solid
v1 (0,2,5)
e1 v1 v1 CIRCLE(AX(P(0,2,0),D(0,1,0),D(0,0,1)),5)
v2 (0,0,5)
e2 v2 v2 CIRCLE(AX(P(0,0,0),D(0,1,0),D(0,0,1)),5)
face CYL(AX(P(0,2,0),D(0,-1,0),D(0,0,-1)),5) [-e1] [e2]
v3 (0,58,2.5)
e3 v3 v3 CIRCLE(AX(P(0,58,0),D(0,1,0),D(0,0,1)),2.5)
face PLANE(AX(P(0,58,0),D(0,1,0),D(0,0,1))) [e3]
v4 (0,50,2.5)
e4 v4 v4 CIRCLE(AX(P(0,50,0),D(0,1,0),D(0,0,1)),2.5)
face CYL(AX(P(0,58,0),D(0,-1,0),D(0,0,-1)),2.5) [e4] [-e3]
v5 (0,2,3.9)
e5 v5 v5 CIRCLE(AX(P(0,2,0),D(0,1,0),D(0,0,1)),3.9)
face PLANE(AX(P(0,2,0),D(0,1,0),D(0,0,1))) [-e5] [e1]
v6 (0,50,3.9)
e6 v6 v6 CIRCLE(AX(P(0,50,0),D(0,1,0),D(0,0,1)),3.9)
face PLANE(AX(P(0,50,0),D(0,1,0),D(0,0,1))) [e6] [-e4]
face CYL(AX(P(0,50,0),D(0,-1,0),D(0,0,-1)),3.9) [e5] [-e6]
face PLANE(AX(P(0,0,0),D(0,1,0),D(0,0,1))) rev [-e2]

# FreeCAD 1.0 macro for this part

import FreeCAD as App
import Part
import Sketcher

V = App.Vector

doc = App.newDocument("Part")
body = doc.addObject("PartDesign::Body", "Body")

sketch1 = body.newObject("Sketcher::SketchObject", "Sketch")
sketch1.AttachmentSupport = (doc.getObject("XZ_Plane"), [""])
sketch1.MapMode = "FlatFace"
sketch1.addGeometry(Part.Circle(V(0, 0, 0), V(0, 0, 1), 5), False)
sketch1.addConstraint(Sketcher.Constraint("Coincident", 0, 3, -1, 1))
sketch1.addConstraint(Sketcher.Constraint("Diameter", 0, 10.0))
pad1 = body.newObject("PartDesign::Pad", "Pad")
pad1.Profile = sketch1
pad1.Length = 2
pad1.Reversed = True

sketch2 = body.newObject("Sketcher::SketchObject", "Sketch001")
sketch2.AttachmentSupport = (doc.getObject("XZ_Plane"), [""])
sketch2.MapMode = "FlatFace"
sketch2.AttachmentOffset = App.Placement(V(0, 0, -2), App.Rotation())
sketch2.addGeometry(Part.Circle(V(0, 0, 0), V(0, 0, 1), 3.9), False)
sketch2.addConstraint(Sketcher.Constraint("Coincident", 0, 3, -1, 1))
sketch2.addConstraint(Sketcher.Constraint("Diameter", 0, 7.8))
pad2 = body.newObject("PartDesign::Pad", "Pad001")
pad2.Profile = sketch2
pad2.Length = 48
pad2.Reversed = True

sketch3 = body.newObject("Sketcher::SketchObject", "Sketch002")
sketch3.AttachmentSupport = (doc.getObject("XZ_Plane"), [""])
sketch3.MapMode = "FlatFace"
sketch3.AttachmentOffset = App.Placement(V(0, 0, -50), App.Rotation())
sketch3.addGeometry(Part.Circle(V(0, 0, 0), V(0, 0, 1), 2.5), False)
sketch3.addConstraint(Sketcher.Constraint("Coincident", 0, 3, -1, 1))
sketch3.addConstraint(Sketcher.Constraint("Diameter", 0, 5.0))
pad3 = body.newObject("PartDesign::Pad", "Pad002")
pad3.Profile = sketch3
pad3.Length = 8
pad3.Reversed = True

doc.recompute()
